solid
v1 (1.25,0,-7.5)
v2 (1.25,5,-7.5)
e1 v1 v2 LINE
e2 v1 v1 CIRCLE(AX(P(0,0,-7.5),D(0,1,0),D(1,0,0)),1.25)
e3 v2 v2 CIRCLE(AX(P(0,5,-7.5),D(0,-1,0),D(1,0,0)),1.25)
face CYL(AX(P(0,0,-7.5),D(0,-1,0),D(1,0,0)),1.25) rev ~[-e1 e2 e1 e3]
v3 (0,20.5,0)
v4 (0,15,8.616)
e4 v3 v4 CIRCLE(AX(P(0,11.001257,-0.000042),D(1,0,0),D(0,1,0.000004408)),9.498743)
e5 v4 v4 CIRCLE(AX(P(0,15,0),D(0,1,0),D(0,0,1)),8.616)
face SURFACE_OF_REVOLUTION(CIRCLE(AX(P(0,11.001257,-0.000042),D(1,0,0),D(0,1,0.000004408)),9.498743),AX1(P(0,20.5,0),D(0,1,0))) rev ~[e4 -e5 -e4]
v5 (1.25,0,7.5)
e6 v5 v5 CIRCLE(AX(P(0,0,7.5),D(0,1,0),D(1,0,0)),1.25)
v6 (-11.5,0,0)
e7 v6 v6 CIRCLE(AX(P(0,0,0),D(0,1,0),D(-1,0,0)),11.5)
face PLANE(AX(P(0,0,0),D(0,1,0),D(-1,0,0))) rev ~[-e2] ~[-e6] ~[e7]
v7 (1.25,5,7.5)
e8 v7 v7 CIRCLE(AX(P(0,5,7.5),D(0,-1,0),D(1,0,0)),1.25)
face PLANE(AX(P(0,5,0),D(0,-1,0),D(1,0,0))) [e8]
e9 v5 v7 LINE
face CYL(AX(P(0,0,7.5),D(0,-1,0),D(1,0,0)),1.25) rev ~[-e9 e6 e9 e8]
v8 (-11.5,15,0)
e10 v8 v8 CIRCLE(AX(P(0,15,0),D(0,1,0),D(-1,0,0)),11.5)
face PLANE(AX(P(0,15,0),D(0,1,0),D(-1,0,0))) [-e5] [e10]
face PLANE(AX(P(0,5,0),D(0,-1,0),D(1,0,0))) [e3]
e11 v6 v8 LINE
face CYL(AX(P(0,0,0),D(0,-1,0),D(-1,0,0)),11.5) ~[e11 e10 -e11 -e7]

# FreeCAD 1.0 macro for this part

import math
import FreeCAD as App
import Part
import Sketcher
from FreeCAD import Vector
Q = App.Units.Quantity

doc = App.newDocument("Part")
body = doc.addObject("PartDesign::Body", "Body")

# Sketch on XZ plane
sketch1 = body.newObject("Sketcher::SketchObject", "Sketch")
sketch1.AttachmentSupport = (doc.getObject("XZ_Plane"), [""])
sketch1.MapMode = "FlatFace"
sketch1.addGeometry(Part.Circle(Vector(0, 0, 0), Vector(0, 0, 1), 12), False)
sketch1.addConstraint([
    Sketcher.Constraint("Coincident", 0, 3, -1, 1),
    Sketcher.Constraint("Diameter", 0, Q("23 mm")),
])
pad1 = body.newObject("PartDesign::Pad", "Pad")
pad1.Profile = sketch1
pad1.Length = 15
pad1.Reversed = True

# Sketch on YZ plane
sketch2 = body.newObject("Sketcher::SketchObject", "Sketch001")
sketch2.AttachmentSupport = (doc.getObject("YZ_Plane"), [""])
sketch2.MapMode = "FlatFace"
sketch2.addGeometry([
    Part.LineSegment(Vector(15, 9, 0), Vector(15, 0, 0)),
    Part.LineSegment(Vector(15, 0, 0), Vector(20, 0, 0)),
    Part.ArcOfCircle(Part.Circle(Vector(11, 0, 0), Vector(0, 0, 1), 9), math.radians(0), math.radians(65)),
], False)
sketch2.addConstraint([
    Sketcher.Constraint("Coincident", 0, 2, 1, 1),
    Sketcher.Constraint("Coincident", 1, 2, 2, 1),
    Sketcher.Constraint("Coincident", 2, 2, 0, 1),
    Sketcher.Constraint("Vertical", 0),
    Sketcher.Constraint("Horizontal", 1),
    Sketcher.Constraint("PointOnObject", 2, 3, -1),
    Sketcher.Constraint("PointOnObject", 0, 2, -1),
    Sketcher.Constraint("DistanceX", -1, 1, 1, 2, Q("20.5 mm")),
    Sketcher.Constraint("Radius", 2, Q("9.4986 mm")),
    Sketcher.Constraint("DistanceX", 1, 1, 1, 2, Q("5.5 mm")),
])
revolution = body.newObject("PartDesign::Revolution", "Revolution")
revolution.Profile = sketch2
revolution.ReferenceAxis = (sketch2, ["H_Axis"])
revolution.Angle = 360

# Sketch on XZ plane
sketch3 = body.newObject("Sketcher::SketchObject", "Sketch002")
sketch3.AttachmentSupport = (doc.getObject("XZ_Plane"), [""])
sketch3.MapMode = "FlatFace"
sketch3.addGeometry([
    Part.Circle(Vector(0, 7.5, 0), Vector(0, 0, 1), 1.2),
    Part.Circle(Vector(0, -7.5, 0), Vector(0, 0, 1), 1.2),
], False)
sketch3.addConstraint([
    Sketcher.Constraint("Equal", 0, 1),
    Sketcher.Constraint("Symmetric", 0, 3, 1, 3, -1, 1),
    Sketcher.Constraint("PointOnObject", 0, 3, -2),
    Sketcher.Constraint("Diameter", 0, Q("2.5 mm")),
    Sketcher.Constraint("DistanceY", 1, 3, 0, 3, Q("15 mm")),
])
pocket1 = body.newObject("PartDesign::Pocket", "Pocket")
pocket1.Profile = sketch3
pocket1.Length = 5

doc.recompute()
